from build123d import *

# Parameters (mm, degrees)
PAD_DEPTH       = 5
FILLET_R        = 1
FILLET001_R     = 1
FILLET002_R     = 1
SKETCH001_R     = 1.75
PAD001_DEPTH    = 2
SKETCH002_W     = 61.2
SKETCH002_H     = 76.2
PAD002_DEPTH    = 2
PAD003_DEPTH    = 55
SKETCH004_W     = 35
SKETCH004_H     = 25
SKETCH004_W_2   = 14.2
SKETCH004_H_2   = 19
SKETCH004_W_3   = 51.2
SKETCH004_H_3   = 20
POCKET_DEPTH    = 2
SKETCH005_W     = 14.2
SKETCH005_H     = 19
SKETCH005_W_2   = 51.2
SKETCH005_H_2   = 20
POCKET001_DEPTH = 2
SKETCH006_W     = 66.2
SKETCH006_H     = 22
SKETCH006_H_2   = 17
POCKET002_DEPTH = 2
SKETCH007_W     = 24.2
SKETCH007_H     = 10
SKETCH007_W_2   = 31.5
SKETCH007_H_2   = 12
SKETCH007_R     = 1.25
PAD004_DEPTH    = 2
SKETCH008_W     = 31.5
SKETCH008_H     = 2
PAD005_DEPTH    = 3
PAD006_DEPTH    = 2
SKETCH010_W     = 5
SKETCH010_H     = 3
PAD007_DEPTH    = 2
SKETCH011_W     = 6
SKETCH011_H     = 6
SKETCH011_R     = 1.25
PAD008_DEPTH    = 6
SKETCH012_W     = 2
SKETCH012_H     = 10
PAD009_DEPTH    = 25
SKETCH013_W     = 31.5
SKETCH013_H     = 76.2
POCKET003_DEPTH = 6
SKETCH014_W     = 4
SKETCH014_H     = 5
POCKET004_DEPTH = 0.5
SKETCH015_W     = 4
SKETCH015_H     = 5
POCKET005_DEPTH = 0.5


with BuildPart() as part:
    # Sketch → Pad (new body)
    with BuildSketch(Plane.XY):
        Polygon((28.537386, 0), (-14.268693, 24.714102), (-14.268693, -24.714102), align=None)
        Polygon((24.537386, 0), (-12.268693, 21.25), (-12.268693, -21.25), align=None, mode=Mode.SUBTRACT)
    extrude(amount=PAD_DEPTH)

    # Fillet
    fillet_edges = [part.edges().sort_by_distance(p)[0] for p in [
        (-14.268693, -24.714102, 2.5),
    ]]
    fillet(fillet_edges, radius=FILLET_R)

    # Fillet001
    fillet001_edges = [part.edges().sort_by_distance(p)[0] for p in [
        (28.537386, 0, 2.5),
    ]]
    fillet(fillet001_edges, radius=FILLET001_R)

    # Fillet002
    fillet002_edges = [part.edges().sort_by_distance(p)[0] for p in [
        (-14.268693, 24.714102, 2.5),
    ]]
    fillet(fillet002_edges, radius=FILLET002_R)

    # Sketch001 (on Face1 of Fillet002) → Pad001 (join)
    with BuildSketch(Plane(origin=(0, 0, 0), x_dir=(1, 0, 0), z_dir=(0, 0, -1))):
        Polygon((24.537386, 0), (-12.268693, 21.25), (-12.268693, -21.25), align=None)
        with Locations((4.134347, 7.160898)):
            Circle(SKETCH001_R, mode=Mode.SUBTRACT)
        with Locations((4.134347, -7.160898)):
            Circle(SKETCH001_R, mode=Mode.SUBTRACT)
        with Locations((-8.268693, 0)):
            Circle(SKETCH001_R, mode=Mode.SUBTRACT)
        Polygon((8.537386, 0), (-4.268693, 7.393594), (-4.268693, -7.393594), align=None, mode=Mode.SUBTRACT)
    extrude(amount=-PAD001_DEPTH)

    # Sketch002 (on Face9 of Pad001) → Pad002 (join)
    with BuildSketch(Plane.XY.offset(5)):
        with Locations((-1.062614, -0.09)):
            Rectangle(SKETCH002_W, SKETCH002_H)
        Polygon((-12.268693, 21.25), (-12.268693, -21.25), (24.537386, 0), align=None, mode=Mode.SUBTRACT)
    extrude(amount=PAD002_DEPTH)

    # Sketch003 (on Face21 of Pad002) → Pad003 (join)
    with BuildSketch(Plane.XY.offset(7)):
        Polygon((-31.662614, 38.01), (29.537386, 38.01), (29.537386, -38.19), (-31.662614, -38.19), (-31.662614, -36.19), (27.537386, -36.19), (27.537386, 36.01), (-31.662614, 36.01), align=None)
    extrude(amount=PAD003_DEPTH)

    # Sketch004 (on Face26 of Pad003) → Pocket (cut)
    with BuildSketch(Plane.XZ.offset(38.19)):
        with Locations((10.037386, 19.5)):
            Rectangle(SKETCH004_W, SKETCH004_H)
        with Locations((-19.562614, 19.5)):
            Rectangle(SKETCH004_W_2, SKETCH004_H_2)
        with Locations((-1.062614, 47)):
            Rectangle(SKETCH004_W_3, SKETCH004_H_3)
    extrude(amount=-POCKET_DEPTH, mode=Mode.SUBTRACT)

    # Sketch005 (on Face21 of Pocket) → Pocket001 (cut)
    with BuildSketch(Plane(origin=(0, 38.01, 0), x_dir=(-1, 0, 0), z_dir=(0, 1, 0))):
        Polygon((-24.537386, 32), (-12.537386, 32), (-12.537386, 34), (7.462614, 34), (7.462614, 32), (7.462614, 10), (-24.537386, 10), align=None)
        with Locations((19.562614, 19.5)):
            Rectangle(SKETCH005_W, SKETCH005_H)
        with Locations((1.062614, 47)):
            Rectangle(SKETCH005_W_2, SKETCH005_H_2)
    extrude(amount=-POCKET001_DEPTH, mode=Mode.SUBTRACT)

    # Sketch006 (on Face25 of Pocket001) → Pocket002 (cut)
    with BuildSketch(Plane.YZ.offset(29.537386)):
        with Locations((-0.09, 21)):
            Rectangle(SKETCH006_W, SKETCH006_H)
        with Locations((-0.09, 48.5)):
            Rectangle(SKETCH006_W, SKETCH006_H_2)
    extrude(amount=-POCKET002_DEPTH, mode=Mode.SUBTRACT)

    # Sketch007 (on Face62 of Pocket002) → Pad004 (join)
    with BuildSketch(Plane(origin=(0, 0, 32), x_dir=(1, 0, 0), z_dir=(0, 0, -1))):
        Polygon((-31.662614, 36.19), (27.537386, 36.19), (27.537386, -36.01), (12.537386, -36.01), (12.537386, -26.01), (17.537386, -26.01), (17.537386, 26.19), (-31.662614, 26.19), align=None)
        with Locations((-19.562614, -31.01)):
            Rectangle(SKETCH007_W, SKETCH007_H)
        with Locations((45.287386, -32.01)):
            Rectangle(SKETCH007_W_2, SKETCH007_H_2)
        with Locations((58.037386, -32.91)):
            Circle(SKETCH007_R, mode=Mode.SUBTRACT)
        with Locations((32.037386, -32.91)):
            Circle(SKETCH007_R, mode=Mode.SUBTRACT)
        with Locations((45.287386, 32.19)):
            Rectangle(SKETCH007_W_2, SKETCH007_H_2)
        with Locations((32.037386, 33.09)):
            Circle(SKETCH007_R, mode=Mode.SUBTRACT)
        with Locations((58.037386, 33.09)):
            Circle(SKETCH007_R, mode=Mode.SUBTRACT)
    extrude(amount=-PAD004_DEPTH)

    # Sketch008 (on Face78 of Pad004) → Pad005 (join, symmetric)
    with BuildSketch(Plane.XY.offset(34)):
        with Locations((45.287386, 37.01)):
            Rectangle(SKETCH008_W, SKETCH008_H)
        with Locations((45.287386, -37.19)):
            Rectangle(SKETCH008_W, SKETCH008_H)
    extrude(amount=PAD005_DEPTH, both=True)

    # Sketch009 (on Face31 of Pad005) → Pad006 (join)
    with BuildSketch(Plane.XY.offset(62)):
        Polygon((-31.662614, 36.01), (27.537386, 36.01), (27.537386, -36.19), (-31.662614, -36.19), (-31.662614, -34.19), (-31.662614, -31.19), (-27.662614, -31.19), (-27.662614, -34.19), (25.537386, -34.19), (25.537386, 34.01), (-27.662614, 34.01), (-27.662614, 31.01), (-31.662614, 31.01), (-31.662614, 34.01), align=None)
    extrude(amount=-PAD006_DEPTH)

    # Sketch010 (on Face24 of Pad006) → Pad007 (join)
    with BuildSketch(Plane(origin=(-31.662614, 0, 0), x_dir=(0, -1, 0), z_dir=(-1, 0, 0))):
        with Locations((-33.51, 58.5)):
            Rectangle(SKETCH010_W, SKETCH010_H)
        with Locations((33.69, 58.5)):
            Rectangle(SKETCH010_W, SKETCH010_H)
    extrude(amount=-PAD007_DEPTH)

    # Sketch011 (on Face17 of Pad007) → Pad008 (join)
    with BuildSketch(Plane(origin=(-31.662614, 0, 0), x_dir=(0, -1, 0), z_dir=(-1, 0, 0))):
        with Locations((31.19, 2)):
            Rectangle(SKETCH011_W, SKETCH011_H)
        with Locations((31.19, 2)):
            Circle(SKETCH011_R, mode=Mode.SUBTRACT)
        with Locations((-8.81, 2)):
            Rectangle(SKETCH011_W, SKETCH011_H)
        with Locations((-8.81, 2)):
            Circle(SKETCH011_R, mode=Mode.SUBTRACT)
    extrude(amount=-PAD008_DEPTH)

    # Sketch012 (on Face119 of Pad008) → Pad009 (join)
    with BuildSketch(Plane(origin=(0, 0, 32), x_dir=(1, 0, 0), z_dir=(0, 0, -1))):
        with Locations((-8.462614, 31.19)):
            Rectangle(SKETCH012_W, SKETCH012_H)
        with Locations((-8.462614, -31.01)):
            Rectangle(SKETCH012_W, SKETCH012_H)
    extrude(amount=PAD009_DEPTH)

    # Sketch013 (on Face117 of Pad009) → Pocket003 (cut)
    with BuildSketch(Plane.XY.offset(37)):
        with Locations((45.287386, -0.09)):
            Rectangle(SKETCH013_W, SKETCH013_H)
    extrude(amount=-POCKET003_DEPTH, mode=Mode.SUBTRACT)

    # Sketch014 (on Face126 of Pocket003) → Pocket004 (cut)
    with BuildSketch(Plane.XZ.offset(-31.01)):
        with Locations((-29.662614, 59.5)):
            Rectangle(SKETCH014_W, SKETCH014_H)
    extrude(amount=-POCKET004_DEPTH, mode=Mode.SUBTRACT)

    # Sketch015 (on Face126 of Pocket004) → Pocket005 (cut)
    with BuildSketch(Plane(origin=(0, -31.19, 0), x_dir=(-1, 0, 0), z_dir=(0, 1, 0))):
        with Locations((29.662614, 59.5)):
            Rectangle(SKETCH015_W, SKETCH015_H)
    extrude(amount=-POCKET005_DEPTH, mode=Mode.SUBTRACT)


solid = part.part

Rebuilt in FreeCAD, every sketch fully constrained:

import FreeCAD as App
import Part
import Sketcher

V = App.Vector
Q = App.Units.Quantity


def edges_at(feature, points):
    """Names of the edges that pass closest to the given points."""
    edges = feature.Shape.Edges
    near = lambda p: min(range(len(edges)), key=lambda i: edges[i].distToShape(Part.Vertex(*p))[0])
    return sorted({f"Edge{near(p) + 1}" for p in points})

doc = App.newDocument("Part")
body = doc.addObject("PartDesign::Body", "Body")

# Sketch on XY plane
sketch1 = body.newObject("Sketcher::SketchObject", "Sketch")
sketch1.AttachmentSupport = (doc.getObject("XY_Plane"), [""])
sketch1.MapMode = "FlatFace"
sketch1.addGeometry([
    Part.LineSegment(V(29, 0, 0), V(-14, 25, 0)),  # 0
    Part.LineSegment(V(-14, 25, 0), V(-14, -25, 0)),  # 1
    Part.LineSegment(V(-14, -25, 0), V(29, 0, 0)),  # 2
    Part.LineSegment(V(-12, 21, 0), V(25, 0, 0)),  # 3
    Part.LineSegment(V(25, 0, 0), V(-12, -21, 0)),  # 4
    Part.LineSegment(V(-12, -21, 0), V(-12, 21, 0)),  # 5
], False)
sketch1.addConstraint([
    Sketcher.Constraint("Coincident", 0, 2, 1, 1),
    Sketcher.Constraint("Coincident", 1, 2, 2, 1),
    Sketcher.Constraint("Coincident", 2, 2, 0, 1),
    Sketcher.Constraint("Coincident", 3, 2, 4, 1),
    Sketcher.Constraint("Coincident", 4, 2, 5, 1),
    Sketcher.Constraint("Coincident", 5, 2, 3, 1),
    Sketcher.Constraint("Vertical", 1),
    Sketcher.Constraint("Vertical", 5),
    Sketcher.Constraint("PointOnObject", 2, 2, -1),
    Sketcher.Constraint("PointOnObject", 3, 2, -1),
    Sketcher.Constraint("Parallel", 0, 3),
    Sketcher.Constraint("Parallel", 2, 4),
    Sketcher.Constraint("Equal", 0, 2),
    Sketcher.Constraint("Angle", 0, Q("149.999999 deg")),
    Sketcher.Constraint("DistanceY", 5, 1, 5, 2, 42.5),
    Sketcher.Constraint("DistanceX", 3, 2, 2, 2, 4.0),
    Sketcher.Constraint("DistanceX", 1, 2, 4, 2, 2.0),
    Sketcher.Constraint("DistanceX", 0, 2, -1, 1, 14.268693),
])
pad1 = body.newObject("PartDesign::Pad", "Pad")
pad1.Profile = sketch1
pad1.Length = 5
doc.recompute()

fillet = body.newObject("PartDesign::Fillet", "Fillet")
fillet.Base = (pad1, edges_at(pad1, [(-14.269, -24.714, 2.5)]))
fillet.Radius = 1
doc.recompute()

fillet2 = body.newObject("PartDesign::Fillet", "Fillet001")
fillet2.Base = (fillet, edges_at(fillet, [(28.537, 0, 2.5)]))
fillet2.Radius = 1
doc.recompute()

fillet3 = body.newObject("PartDesign::Fillet", "Fillet002")
fillet3.Base = (fillet2, edges_at(fillet2, [(-14.269, 24.714, 2.5)]))
fillet3.Radius = 1

# Sketch on XY plane
sketch2 = body.newObject("Sketcher::SketchObject", "Sketch001")
sketch2.AttachmentSupport = (doc.getObject("XY_Plane"), [""])
sketch2.MapMode = "FlatFace"
sketch2.addGeometry([
    Part.LineSegment(V(24.5, 0, 0), V(-12.3, -21.2, 0)),  # 0
    Part.LineSegment(V(-12.3, -21.2, 0), V(-12.3, 21.2, 0)),  # 1
    Part.LineSegment(V(-12.3, 21.2, 0), V(24.5, 0, 0)),  # 2
    Part.Circle(V(4.1, 7.2, 0), V(0, 0, 1), 1.8),  # 3
    Part.Circle(V(-8.3, 0, 0), V(0, 0, 1), 1.8),  # 4
    Part.LineSegment(V(-4.3, -7.4, 0), V(8.5, 0, 0)),  # 5
    Part.LineSegment(V(8.5, 0, 0), V(-4.3, 7.4, 0)),  # 6
    Part.LineSegment(V(-4.3, 7.4, 0), V(-4.3, -7.4, 0)),  # 7
    Part.Circle(V(4.1, -7.2, 0), V(0, 0, 1), 1.8),  # 8
], False)
sketch2.addConstraint([
    Sketcher.Constraint("Coincident", 0, 2, 1, 1),
    Sketcher.Constraint("Coincident", 1, 2, 2, 1),
    Sketcher.Constraint("Coincident", 2, 2, 0, 1),
    Sketcher.Constraint("Coincident", 5, 2, 6, 1),
    Sketcher.Constraint("Coincident", 6, 2, 7, 1),
    Sketcher.Constraint("Coincident", 7, 2, 5, 1),
    Sketcher.Constraint("Vertical", 1),
    Sketcher.Constraint("Vertical", 7),
    Sketcher.Constraint("Equal", 3, 4),
    Sketcher.Constraint("Equal", 4, 8),
    Sketcher.Constraint("Symmetric", 3, 3, 8, 3, -1),
    Sketcher.Constraint("PointOnObject", 4, 3, -1),
    Sketcher.Constraint("PointOnObject", 2, 2, -1),
    Sketcher.Constraint("PointOnObject", 5, 2, -1),
    Sketcher.Constraint("Parallel", 0, 5),
    Sketcher.Constraint("Parallel", 2, 6),
    Sketcher.Constraint("Equal", 0, 2),
    Sketcher.Constraint("Diameter", 3, 3.5),
    Sketcher.Constraint("Angle", 0, Q("-150 deg")),
    Sketcher.Constraint("DistanceY", 1, 1, 1, 2, 42.5),
    Sketcher.Constraint("DistanceX", 0, 2, 4, 3, 4.0),
    Sketcher.Constraint("DistanceX", 5, 2, 2, 2, 16.0),
    Sketcher.Constraint("DistanceX", 4, 3, 6, 2, 4.0),
    Sketcher.Constraint("DistanceY", -1, 1, 3, 3, 7.160898),
    Sketcher.Constraint("DistanceX", 4, 3, 3, 3, 12.40304),
    Sketcher.Constraint("DistanceX", -1, 1, 3, 3, 4.134347),
])
pad2 = body.newObject("PartDesign::Pad", "Pad001")
pad2.Profile = sketch2
pad2.Length = 2

# Sketch on XY plane
sketch3 = body.newObject("Sketcher::SketchObject", "Sketch002")
sketch3.AttachmentSupport = (doc.getObject("XY_Plane"), [""])
sketch3.MapMode = "FlatFace"
sketch3.AttachmentOffset = App.Placement(V(0, 0, 5), App.Rotation())
sketch3.addGeometry([
    Part.LineSegment(V(-32, 38, 0), V(-32, -38, 0)),  # 0
    Part.LineSegment(V(-32, -38, 0), V(30, -38, 0)),  # 1
    Part.LineSegment(V(30, -38, 0), V(30, 38, 0)),  # 2
    Part.LineSegment(V(30, 38, 0), V(-32, 38, 0)),  # 3
    Part.LineSegment(V(-12, -21, 0), V(-12, 21, 0)),  # 4
    Part.LineSegment(V(-12, 21, 0), V(25, 0, 0)),  # 5
    Part.LineSegment(V(25, 0, 0), V(-12, -21, 0)),  # 6
], False)
sketch3.addConstraint([
    Sketcher.Constraint("Coincident", 0, 2, 1, 1),
    Sketcher.Constraint("Coincident", 1, 2, 2, 1),
    Sketcher.Constraint("Coincident", 2, 2, 3, 1),
    Sketcher.Constraint("Coincident", 3, 2, 0, 1),
    Sketcher.Constraint("Coincident", 4, 2, 5, 1),
    Sketcher.Constraint("Coincident", 5, 2, 6, 1),
    Sketcher.Constraint("Coincident", 6, 2, 4, 1),
    Sketcher.Constraint("Vertical", 0),
    Sketcher.Constraint("Horizontal", 1),
    Sketcher.Constraint("Vertical", 2),
    Sketcher.Constraint("Horizontal", 3),
    Sketcher.Constraint("Vertical", 4),
    Sketcher.Constraint("PointOnObject", 5, 2, -1),
    Sketcher.Constraint("Equal", 5, 6),
    Sketcher.Constraint("Angle", 5, Q("-30 deg")),
    Sketcher.Constraint("DistanceX", 1, 1, 1, 2, 61.2),
    Sketcher.Constraint("DistanceY", 0, 2, 0, 1, 76.2),
    Sketcher.Constraint("DistanceY", 4, 1, 4, 2, 42.5),
    Sketcher.Constraint("DistanceX", 5, 2, 2, 2, 5.0),
    Sketcher.Constraint("DistanceY", 0, 2, -1, 1, 38.19),
    Sketcher.Constraint("DistanceX", 0, 2, -1, 1, 31.662614),
])
pad3 = body.newObject("PartDesign::Pad", "Pad002")
pad3.Profile = sketch3
pad3.Length = 2

# Sketch on XY plane
sketch4 = body.newObject("Sketcher::SketchObject", "Sketch003")
sketch4.AttachmentSupport = (doc.getObject("XY_Plane"), [""])
sketch4.MapMode = "FlatFace"
sketch4.AttachmentOffset = App.Placement(V(0, 0, 7), App.Rotation())
sketch4.addGeometry([
    Part.LineSegment(V(29.5, 38, 0), V(-31.7, 38, 0)),  # 0
    Part.LineSegment(V(-31.7, 38, 0), V(-31.7, 36, 0)),  # 1
    Part.LineSegment(V(-31.7, 36, 0), V(27.5, 36, 0)),  # 2
    Part.LineSegment(V(27.5, 36, 0), V(27.5, -36.2, 0)),  # 3
    Part.LineSegment(V(27.5, -36.2, 0), V(-31.7, -36.2, 0)),  # 4
    Part.LineSegment(V(-31.7, -36.2, 0), V(-31.7, -38.2, 0)),  # 5
    Part.LineSegment(V(-31.7, -38.2, 0), V(29.5, -38.2, 0)),  # 6
    Part.LineSegment(V(29.5, -38.2, 0), V(29.5, 38, 0)),  # 7
], False)
sketch4.addConstraint([
    Sketcher.Constraint("Coincident", 0, 2, 1, 1),
    Sketcher.Constraint("Coincident", 1, 2, 2, 1),
    Sketcher.Constraint("Coincident", 2, 2, 3, 1),
    Sketcher.Constraint("Coincident", 3, 2, 4, 1),
    Sketcher.Constraint("Coincident", 4, 2, 5, 1),
    Sketcher.Constraint("Coincident", 5, 2, 6, 1),
    Sketcher.Constraint("Coincident", 6, 2, 7, 1),
    Sketcher.Constraint("Coincident", 7, 2, 0, 1),
    Sketcher.Constraint("Horizontal", 0),
    Sketcher.Constraint("Vertical", 1),
    Sketcher.Constraint("Horizontal", 2),
    Sketcher.Constraint("Vertical", 3),
    Sketcher.Constraint("Horizontal", 4),
    Sketcher.Constraint("Vertical", 5),
    Sketcher.Constraint("Horizontal", 6),
    Sketcher.Constraint("Vertical", 7),
    Sketcher.Constraint("Vertical", 1, 2, 4, 2),
    Sketcher.Constraint("Equal", 1, 5),
    Sketcher.Constraint("DistanceY", 1, 2, 1, 1, 2.0),
    Sketcher.Constraint("DistanceX", 0, 2, 0, 1, 61.2),
    Sketcher.Constraint("DistanceX", 2, 1, 2, 2, 59.2),
    Sketcher.Constraint("DistanceY", 3, 2, 3, 1, 72.2),
    Sketcher.Constraint("DistanceY", -1, 1, 0, 2, 38.01),
    Sketcher.Constraint("DistanceX", 0, 2, -1, 1, 31.662614),
])
pad4 = body.newObject("PartDesign::Pad", "Pad003")
pad4.Profile = sketch4
pad4.Length = 55

# Sketch on XZ plane
sketch5 = body.newObject("Sketcher::SketchObject", "Sketch004")
sketch5.AttachmentSupport = (doc.getObject("XZ_Plane"), [""])
sketch5.MapMode = "FlatFace"
sketch5.AttachmentOffset = App.Placement(V(0, 0, 38.19), App.Rotation())
sketch5.addGeometry([
    Part.LineSegment(V(-7, 32, 0), V(-7, 7, 0)),  # 0
    Part.LineSegment(V(-7, 7, 0), V(28, 7, 0)),  # 1
    Part.LineSegment(V(28, 7, 0), V(28, 32, 0)),  # 2
    Part.LineSegment(V(28, 32, 0), V(-7, 32, 0)),  # 3
    Part.LineSegment(V(-27, 29, 0), V(-27, 10, 0)),  # 4
    Part.LineSegment(V(-27, 10, 0), V(-12, 10, 0)),  # 5
    Part.LineSegment(V(-12, 10, 0), V(-12, 29, 0)),  # 6
    Part.LineSegment(V(-12, 29, 0), V(-27, 29, 0)),  # 7
    Part.LineSegment(V(-27, 57, 0), V(-27, 37, 0)),  # 8
    Part.LineSegment(V(-27, 37, 0), V(25, 37, 0)),  # 9
    Part.LineSegment(V(25, 37, 0), V(25, 57, 0)),  # 10
    Part.LineSegment(V(25, 57, 0), V(-27, 57, 0)),  # 11
], False)
sketch5.addConstraint([
    Sketcher.Constraint("Coincident", 0, 2, 1, 1),
    Sketcher.Constraint("Coincident", 1, 2, 2, 1),
    Sketcher.Constraint("Coincident", 2, 2, 3, 1),
    Sketcher.Constraint("Coincident", 3, 2, 0, 1),
    Sketcher.Constraint("Coincident", 4, 2, 5, 1),
    Sketcher.Constraint("Coincident", 5, 2, 6, 1),
    Sketcher.Constraint("Coincident", 6, 2, 7, 1),
    Sketcher.Constraint("Coincident", 7, 2, 4, 1),
    Sketcher.Constraint("Coincident", 8, 2, 9, 1),
    Sketcher.Constraint("Coincident", 9, 2, 10, 1),
    Sketcher.Constraint("Coincident", 10, 2, 11, 1),
    Sketcher.Constraint("Coincident", 11, 2, 8, 1),
    Sketcher.Constraint("Vertical", 0),
    Sketcher.Constraint("Horizontal", 1),
    Sketcher.Constraint("Vertical", 2),
    Sketcher.Constraint("Horizontal", 3),
    Sketcher.Constraint("Vertical", 4),
    Sketcher.Constraint("Horizontal", 5),
    Sketcher.Constraint("Vertical", 6),
    Sketcher.Constraint("Horizontal", 7),
    Sketcher.Constraint("Vertical", 8),
    Sketcher.Constraint("Horizontal", 9),
    Sketcher.Constraint("Vertical", 10),
    Sketcher.Constraint("Horizontal", 11),
    Sketcher.Constraint("Vertical", 7, 2, 8, 2),
    Sketcher.Constraint("DistanceX", 1, 1, 1, 2, 35.0),
    Sketcher.Constraint("DistanceY", 0, 2, 0, 1, 25.0),
    Sketcher.Constraint("DistanceY", 4, 2, 4, 1, 19.0),
    Sketcher.Constraint("DistanceY", 8, 2, 8, 1, 20.0),
    Sketcher.Constraint("DistanceX", 5, 1, 5, 2, 14.2),
    Sketcher.Constraint("DistanceX", 9, 1, 9, 2, 51.2),
    Sketcher.Constraint("DistanceY", -1, 1, 0, 2, 7.0),
    Sketcher.Constraint("DistanceY", -1, 1, 4, 2, 10.0),
    Sketcher.Constraint("DistanceY", -1, 1, 8, 2, 37.0),
    Sketcher.Constraint("DistanceX", 5, 2, 0, 2, 5.0),
    Sketcher.Constraint("DistanceX", 0, 2, -1, 1, 7.462614),
])
pocket1 = body.newObject("PartDesign::Pocket", "Pocket")
pocket1.Profile = sketch5
pocket1.Length = 2

# Sketch on XZ plane
sketch6 = body.newObject("Sketcher::SketchObject", "Sketch005")
sketch6.AttachmentSupport = (doc.getObject("XZ_Plane"), [""])
sketch6.MapMode = "FlatFace"
sketch6.AttachmentOffset = App.Placement(V(0, 0, -38.01), App.Rotation())
sketch6.addGeometry([
    Part.LineSegment(V(12.5, 32, 0), V(24.5, 32, 0)),  # 0
    Part.LineSegment(V(24.5, 32, 0), V(24.5, 10, 0)),  # 1
    Part.LineSegment(V(24.5, 10, 0), V(-7.5, 10, 0)),  # 2
    Part.LineSegment(V(-7.5, 10, 0), V(-7.5, 34, 0)),  # 3
    Part.LineSegment(V(-7.5, 34, 0), V(12.5, 34, 0)),  # 4
    Part.LineSegment(V(12.5, 34, 0), V(12.5, 32, 0)),  # 5
    Part.LineSegment(V(-12.5, 29, 0), V(-12.5, 10, 0)),  # 6
    Part.LineSegment(V(-12.5, 10, 0), V(-26.7, 10, 0)),  # 7
    Part.LineSegment(V(-26.7, 10, 0), V(-26.7, 29, 0)),  # 8
    Part.LineSegment(V(-26.7, 29, 0), V(-12.5, 29, 0)),  # 9
    Part.LineSegment(V(24.5, 57, 0), V(24.5, 37, 0)),  # 10
    Part.LineSegment(V(24.5, 37, 0), V(-26.7, 37, 0)),  # 11
    Part.LineSegment(V(-26.7, 37, 0), V(-26.7, 57, 0)),  # 12
    Part.LineSegment(V(-26.7, 57, 0), V(24.5, 57, 0)),  # 13
], False)
sketch6.addConstraint([
    Sketcher.Constraint("Coincident", 0, 2, 1, 1),
    Sketcher.Constraint("Coincident", 1, 2, 2, 1),
    Sketcher.Constraint("Coincident", 2, 2, 3, 1),
    Sketcher.Constraint("Coincident", 3, 2, 4, 1),
    Sketcher.Constraint("Coincident", 4, 2, 5, 1),
    Sketcher.Constraint("Coincident", 5, 2, 0, 1),
    Sketcher.Constraint("Coincident", 6, 2, 7, 1),
    Sketcher.Constraint("Coincident", 7, 2, 8, 1),
    Sketcher.Constraint("Coincident", 8, 2, 9, 1),
    Sketcher.Constraint("Coincident", 9, 2, 6, 1),
    Sketcher.Constraint("Coincident", 10, 2, 11, 1),
    Sketcher.Constraint("Coincident", 11, 2, 12, 1),
    Sketcher.Constraint("Coincident", 12, 2, 13, 1),
    Sketcher.Constraint("Coincident", 13, 2, 10, 1),
    Sketcher.Constraint("Horizontal", 0),
    Sketcher.Constraint("Vertical", 1),
    Sketcher.Constraint("Horizontal", 2),
    Sketcher.Constraint("Vertical", 3),
    Sketcher.Constraint("Horizontal", 4),
    Sketcher.Constraint("Vertical", 5),
    Sketcher.Constraint("Vertical", 6),
    Sketcher.Constraint("Horizontal", 7),
    Sketcher.Constraint("Vertical", 8),
    Sketcher.Constraint("Horizontal", 9),
    Sketcher.Constraint("Vertical", 10),
    Sketcher.Constraint("Horizontal", 11),
    Sketcher.Constraint("Vertical", 12),
    Sketcher.Constraint("Horizontal", 13),
    Sketcher.Constraint("Horizontal", 2, 2, 6, 2),
    Sketcher.Constraint("Vertical", 1, 2, 10, 2),
    Sketcher.Constraint("Vertical", 8, 2, 11, 2),
    Sketcher.Constraint("Equal", 4, 10),
    Sketcher.Constraint("DistanceX", 0, 1, 0, 2, 12.0),
    Sketcher.Constraint("DistanceX", 2, 2, 2, 1, 32.0),
    Sketcher.Constraint("DistanceY", 1, 2, 1, 1, 22.0),
    Sketcher.Constraint("DistanceY", 3, 1, 3, 2, 24.0),
    Sketcher.Constraint("DistanceY", 6, 2, 6, 1, 19.0),
    Sketcher.Constraint("DistanceX", 7, 2, 7, 1, 14.2),
    Sketcher.Constraint("DistanceX", 11, 2, 11, 1, 51.2),
    Sketcher.Constraint("DistanceY", -1, 1, 0, 2, 32.0),
    Sketcher.Constraint("DistanceY", -1, 1, 10, 2, 37.0),
    Sketcher.Constraint("DistanceX", -1, 1, 0, 2, 24.537386),
])
pocket2 = body.newObject("PartDesign::Pocket", "Pocket001")
pocket2.Profile = sketch6
pocket2.Length = 2
pocket2.Reversed = True

# Sketch on YZ plane
sketch7 = body.newObject("Sketcher::SketchObject", "Sketch006")
sketch7.AttachmentSupport = (doc.getObject("YZ_Plane"), [""])
sketch7.MapMode = "FlatFace"
sketch7.AttachmentOffset = App.Placement(V(0, 0, 29.537386), App.Rotation())
sketch7.addGeometry([
    Part.LineSegment(V(-33, 32, 0), V(-33, 10, 0)),  # 0
    Part.LineSegment(V(-33, 10, 0), V(33, 10, 0)),  # 1
    Part.LineSegment(V(33, 10, 0), V(33, 32, 0)),  # 2
    Part.LineSegment(V(33, 32, 0), V(-33, 32, 0)),  # 3
    Part.LineSegment(V(-33, 57, 0), V(-33, 40, 0)),  # 4
    Part.LineSegment(V(-33, 40, 0), V(33, 40, 0)),  # 5
    Part.LineSegment(V(33, 40, 0), V(33, 57, 0)),  # 6
    Part.LineSegment(V(33, 57, 0), V(-33, 57, 0)),  # 7
], False)
sketch7.addConstraint([
    Sketcher.Constraint("Coincident", 0, 2, 1, 1),
    Sketcher.Constraint("Coincident", 1, 2, 2, 1),
    Sketcher.Constraint("Coincident", 2, 2, 3, 1),
    Sketcher.Constraint("Coincident", 3, 2, 0, 1),
    Sketcher.Constraint("Coincident", 4, 2, 5, 1),
    Sketcher.Constraint("Coincident", 5, 2, 6, 1),
    Sketcher.Constraint("Coincident", 6, 2, 7, 1),
    Sketcher.Constraint("Coincident", 7, 2, 4, 1),
    Sketcher.Constraint("Vertical", 0),
    Sketcher.Constraint("Horizontal", 1),
    Sketcher.Constraint("Vertical", 2),
    Sketcher.Constraint("Horizontal", 3),
    Sketcher.Constraint("Vertical", 4),
    Sketcher.Constraint("Horizontal", 5),
    Sketcher.Constraint("Vertical", 6),
    Sketcher.Constraint("Horizontal", 7),
    Sketcher.Constraint("Vertical", 3, 2, 4, 2),
    Sketcher.Constraint("Vertical", 2, 2, 5, 2),
    Sketcher.Constraint("DistanceY", 0, 2, 0, 1, 22.0),
    Sketcher.Constraint("DistanceY", 4, 2, 4, 1, 17.0),
    Sketcher.Constraint("DistanceX", 1, 1, 1, 2, 66.2),
    Sketcher.Constraint("DistanceY", -1, 1, 0, 2, 10.0),
    Sketcher.Constraint("DistanceY", -1, 1, 4, 2, 40.0),
    Sketcher.Constraint("DistanceX", 0, 2, -1, 1, 33.19),
])
pocket3 = body.newObject("PartDesign::Pocket", "Pocket002")
pocket3.Profile = sketch7
pocket3.Length = 2

# Sketch on XY plane
sketch8 = body.newObject("Sketcher::SketchObject", "Sketch007")
sketch8.AttachmentSupport = (doc.getObject("XY_Plane"), [""])
sketch8.MapMode = "FlatFace"
sketch8.AttachmentOffset = App.Placement(V(0, 0, 32), App.Rotation())
sketch8.addGeometry([
    Part.LineSegment(V(27.5, -36.2, 0), V(-31.7, -36.2, 0)),  # 0
    Part.LineSegment(V(-31.7, -36.2, 0), V(-31.7, -26.2, 0)),  # 1
    Part.LineSegment(V(-31.7, -26.2, 0), V(17.5, -26.2, 0)),  # 2
    Part.LineSegment(V(17.5, -26.2, 0), V(17.5, 26, 0)),  # 3
    Part.LineSegment(V(17.5, 26, 0), V(12.5, 26, 0)),  # 4
    Part.LineSegment(V(12.5, 26, 0), V(12.5, 36, 0)),  # 5
    Part.LineSegment(V(12.5, 36, 0), V(27.5, 36, 0)),  # 6
    Part.LineSegment(V(27.5, 36, 0), V(27.5, -36.2, 0)),  # 7
    Part.LineSegment(V(-31.7, 26, 0), V(-31.7, 36, 0)),  # 8
    Part.LineSegment(V(-31.7, 36, 0), V(-7.5, 36, 0)),  # 9
    Part.LineSegment(V(-7.5, 36, 0), V(-7.5, 26, 0)),  # 10
    Part.LineSegment(V(-7.5, 26, 0), V(-31.7, 26, 0)),  # 11
    Part.LineSegment(V(29.5, 26, 0), V(29.5, 38, 0)),  # 12
    Part.LineSegment(V(29.5, 38, 0), V(61, 38, 0)),  # 13
    Part.LineSegment(V(61, 38, 0), V(61, 26, 0)),  # 14
    Part.LineSegment(V(61, 26, 0), V(29.5, 26, 0)),  # 15
    Part.Circle(V(32, 32.9, 0), V(0, 0, 1), 1.2),  # 16
    Part.Circle(V(58, 32.9, 0), V(0, 0, 1), 1.2),  # 17
    Part.LineSegment(V(29.5, -38.2, 0), V(29.5, -26.2, 0)),  # 18
    Part.LineSegment(V(29.5, -26.2, 0), V(61, -26.2, 0)),  # 19
    Part.LineSegment(V(61, -26.2, 0), V(61, -38.2, 0)),  # 20
    Part.LineSegment(V(61, -38.2, 0), V(29.5, -38.2, 0)),  # 21
    Part.Circle(V(32, -33.1, 0), V(0, 0, 1), 1.2),  # 22
    Part.Circle(V(58, -33.1, 0), V(0, 0, 1), 1.2),  # 23
], False)
sketch8.addConstraint([
    Sketcher.Constraint("Coincident", 0, 2, 1, 1),
    Sketcher.Constraint("Coincident", 1, 2, 2, 1),
    Sketcher.Constraint("Coincident", 2, 2, 3, 1),
    Sketcher.Constraint("Coincident", 3, 2, 4, 1),
    Sketcher.Constraint("Coincident", 4, 2, 5, 1),
    Sketcher.Constraint("Coincident", 5, 2, 6, 1),
    Sketcher.Constraint("Coincident", 6, 2, 7, 1),
    Sketcher.Constraint("Coincident", 7, 2, 0, 1),
    Sketcher.Constraint("Coincident", 8, 2, 9, 1),
    Sketcher.Constraint("Coincident", 9, 2, 10, 1),
    Sketcher.Constraint("Coincident", 10, 2, 11, 1),
    Sketcher.Constraint("Coincident", 11, 2, 8, 1),
    Sketcher.Constraint("Coincident", 12, 2, 13, 1),
    Sketcher.Constraint("Coincident", 13, 2, 14, 1),
    Sketcher.Constraint("Coincident", 14, 2, 15, 1),
    Sketcher.Constraint("Coincident", 15, 2, 12, 1),
    Sketcher.Constraint("Coincident", 18, 2, 19, 1),
    Sketcher.Constraint("Coincident", 19, 2, 20, 1),
    Sketcher.Constraint("Coincident", 20, 2, 21, 1),
    Sketcher.Constraint("Coincident", 21, 2, 18, 1),
    Sketcher.Constraint("Horizontal", 0),
    Sketcher.Constraint("Vertical", 1),
    Sketcher.Constraint("Horizontal", 2),
    Sketcher.Constraint("Vertical", 3),
    Sketcher.Constraint("Horizontal", 4),
    Sketcher.Constraint("Vertical", 5),
    Sketcher.Constraint("Horizontal", 6),
    Sketcher.Constraint("Vertical", 7),
    Sketcher.Constraint("Vertical", 8),
    Sketcher.Constraint("Horizontal", 9),
    Sketcher.Constraint("Vertical", 10),
    Sketcher.Constraint("Horizontal", 11),
    Sketcher.Constraint("Vertical", 12),
    Sketcher.Constraint("Horizontal", 13),
    Sketcher.Constraint("Vertical", 14),
    Sketcher.Constraint("Horizontal", 15),
    Sketcher.Constraint("Vertical", 18),
    Sketcher.Constraint("Horizontal", 19),
    Sketcher.Constraint("Vertical", 20),
    Sketcher.Constraint("Horizontal", 21),
    Sketcher.Constraint("Equal", 16, 17),
    Sketcher.Constraint("Equal", 17, 22),
    Sketcher.Constraint("Equal", 22, 23),
    Sketcher.Constraint("Horizontal", 16, 3, 17, 3),
    Sketcher.Constraint("Horizontal", 22, 3, 23, 3),
    Sketcher.Constraint("Horizontal", 6, 2, 8, 2),
    Sketcher.Constraint("Horizontal", 4, 2, 10, 2),
    Sketcher.Constraint("Horizontal", 11, 2, 14, 2),
    Sketcher.Constraint("Horizontal", 2, 2, 18, 2),
    Sketcher.Constraint("Vertical", 16, 3, 22, 3),
    Sketcher.Constraint("Vertical", 17, 3, 23, 3),
    Sketcher.Constraint("Vertical", 1, 2, 8, 2),
    Sketcher.Constraint("Vertical", 15, 2, 18, 2),
    Sketcher.Constraint("Vertical", 14, 2, 19, 2),
    Sketcher.Constraint("Equal", 1, 5),
    Sketcher.Constraint("Equal", 14, 18),
    Sketcher.Constraint("Diameter", 16, 2.5),
    Sketcher.Constraint("DistanceX", 4, 2, 4, 1, 5.0),
    Sketcher.Constraint("DistanceX", 6, 1, 6, 2, 15.0),
    Sketcher.Constraint("DistanceY", 1, 1, 1, 2, 10.0),
    Sketcher.Constraint("DistanceY", 12, 1, 12, 2, 12.0),
    Sketcher.Constraint("DistanceX", 0, 2, 0, 1, 59.2),
    Sketcher.Constraint("DistanceX", 9, 1, 9, 2, 24.2),
    Sketcher.Constraint("DistanceX", 13, 1, 13, 2, 31.5),
    Sketcher.Constraint("DistanceY", 3, 1, 3, 2, 52.2),
    Sketcher.Constraint("DistanceX", 16, 3, 17, 3, 26.0),
    Sketcher.Constraint("DistanceY", 22, 3, 16, 3, 66.0),
    Sketcher.Constraint("DistanceX", 6, 2, 12, 2, 2.0),
    Sketcher.Constraint("DistanceX", 17, 3, 13, 2, 3.0),
    Sketcher.Constraint("DistanceY", 0, 2, 22, 3, 3.1),
    Sketcher.Constraint("DistanceY", -1, 1, 16, 3, 32.91),
    Sketcher.Constraint("DistanceX", -1, 1, 16, 3, 32.037386),
])
pad5 = body.newObject("PartDesign::Pad", "Pad004")
pad5.Profile = sketch8
pad5.Length = 2

# Sketch on XY plane
sketch9 = body.newObject("Sketcher::SketchObject", "Sketch008")
sketch9.AttachmentSupport = (doc.getObject("XY_Plane"), [""])
sketch9.MapMode = "FlatFace"
sketch9.AttachmentOffset = App.Placement(V(0, 0, 34), App.Rotation())
sketch9.addGeometry([
    Part.LineSegment(V(29.5, 38, 0), V(29.5, 36, 0)),  # 0
    Part.LineSegment(V(29.5, 36, 0), V(61, 36, 0)),  # 1
    Part.LineSegment(V(61, 36, 0), V(61, 38, 0)),  # 2
    Part.LineSegment(V(61, 38, 0), V(29.5, 38, 0)),  # 3
    Part.LineSegment(V(29.5, -36.2, 0), V(29.5, -38.2, 0)),  # 4
    Part.LineSegment(V(29.5, -38.2, 0), V(61, -38.2, 0)),  # 5
    Part.LineSegment(V(61, -38.2, 0), V(61, -36.2, 0)),  # 6
    Part.LineSegment(V(61, -36.2, 0), V(29.5, -36.2, 0)),  # 7
], False)
sketch9.addConstraint([
    Sketcher.Constraint("Coincident", 0, 2, 1, 1),
    Sketcher.Constraint("Coincident", 1, 2, 2, 1),
    Sketcher.Constraint("Coincident", 2, 2, 3, 1),
    Sketcher.Constraint("Coincident", 3, 2, 0, 1),
    Sketcher.Constraint("Coincident", 4, 2, 5, 1),
    Sketcher.Constraint("Coincident", 5, 2, 6, 1),
    Sketcher.Constraint("Coincident", 6, 2, 7, 1),
    Sketcher.Constraint("Coincident", 7, 2, 4, 1),
    Sketcher.Constraint("Vertical", 0),
    Sketcher.Constraint("Horizontal", 1),
    Sketcher.Constraint("Vertical", 2),
    Sketcher.Constraint("Horizontal", 3),
    Sketcher.Constraint("Vertical", 4),
    Sketcher.Constraint("Horizontal", 5),
    Sketcher.Constraint("Vertical", 6),
    Sketcher.Constraint("Horizontal", 7),
    Sketcher.Constraint("Vertical", 3, 2, 4, 2),
    Sketcher.Constraint("Vertical", 2, 2, 5, 2),
    Sketcher.Constraint("Equal", 2, 4),
    Sketcher.Constraint("DistanceY", 0, 2, 0, 1, 2.0),
    Sketcher.Constraint("DistanceX", 1, 1, 1, 2, 31.5),
    Sketcher.Constraint("DistanceY", 4, 2, 0, 2, 74.2),
    Sketcher.Constraint("DistanceY", -1, 1, 0, 2, 36.01),
    Sketcher.Constraint("DistanceX", -1, 1, 0, 2, 29.537386),
])
pad6 = body.newObject("PartDesign::Pad", "Pad005")
pad6.Profile = sketch9
pad6.Length = 6
pad6.Midplane = True

# Sketch on XY plane
sketch10 = body.newObject("Sketcher::SketchObject", "Sketch009")
sketch10.AttachmentSupport = (doc.getObject("XY_Plane"), [""])
sketch10.MapMode = "FlatFace"
sketch10.AttachmentOffset = App.Placement(V(0, 0, 62), App.Rotation())
sketch10.addGeometry([
    Part.LineSegment(V(27.5, 36, 0), V(-31.7, 36, 0)),  # 0
    Part.LineSegment(V(-31.7, 36, 0), V(-31.7, 31, 0)),  # 1
    Part.LineSegment(V(-31.7, 31, 0), V(-27.7, 31, 0)),  # 2
    Part.LineSegment(V(-27.7, 31, 0), V(-27.7, 34, 0)),  # 3
    Part.LineSegment(V(-27.7, 34, 0), V(25.5, 34, 0)),  # 4
    Part.LineSegment(V(25.5, 34, 0), V(25.5, -34.2, 0)),  # 5
    Part.LineSegment(V(25.5, -34.2, 0), V(-27.7, -34.2, 0)),  # 6
    Part.LineSegment(V(-27.7, -34.2, 0), V(-27.7, -31.2, 0)),  # 7
    Part.LineSegment(V(-27.7, -31.2, 0), V(-31.7, -31.2, 0)),  # 8
    Part.LineSegment(V(-31.7, -31.2, 0), V(-31.7, -36.2, 0)),  # 9
    Part.LineSegment(V(-31.7, -36.2, 0), V(27.5, -36.2, 0)),  # 10
    Part.LineSegment(V(27.5, -36.2, 0), V(27.5, 36, 0)),  # 11
], False)
sketch10.addConstraint([
    Sketcher.Constraint("Coincident", 0, 2, 1, 1),
    Sketcher.Constraint("Coincident", 1, 2, 2, 1),
    Sketcher.Constraint("Coincident", 2, 2, 3, 1),
    Sketcher.Constraint("Coincident", 3, 2, 4, 1),
    Sketcher.Constraint("Coincident", 4, 2, 5, 1),
    Sketcher.Constraint("Coincident", 5, 2, 6, 1),
    Sketcher.Constraint("Coincident", 6, 2, 7, 1),
    Sketcher.Constraint("Coincident", 7, 2, 8, 1),
    Sketcher.Constraint("Coincident", 8, 2, 9, 1),
    Sketcher.Constraint("Coincident", 9, 2, 10, 1),
    Sketcher.Constraint("Coincident", 10, 2, 11, 1),
    Sketcher.Constraint("Coincident", 11, 2, 0, 1),
    Sketcher.Constraint("Horizontal", 0),
    Sketcher.Constraint("Vertical", 1),
    Sketcher.Constraint("Horizontal", 2),
    Sketcher.Constraint("Vertical", 3),
    Sketcher.Constraint("Horizontal", 4),
    Sketcher.Constraint("Vertical", 5),
    Sketcher.Constraint("Horizontal", 6),
    Sketcher.Constraint("Vertical", 7),
    Sketcher.Constraint("Horizontal", 8),
    Sketcher.Constraint("Vertical", 9),
    Sketcher.Constraint("Horizontal", 10),
    Sketcher.Constraint("Vertical", 11),
    Sketcher.Constraint("Vertical", 3, 2, 6, 2),
    Sketcher.Constraint("Vertical", 1, 2, 8, 2),
    Sketcher.Constraint("Equal", 3, 7),
    Sketcher.Constraint("Equal", 1, 9),
    Sketcher.Constraint("DistanceX", 2, 1, 2, 2, 4.0),
    Sketcher.Constraint("DistanceY", 1, 2, 1, 1, 5.0),
    Sketcher.Constraint("DistanceY", 3, 1, 3, 2, 3.0),
    Sketcher.Constraint("DistanceX", 0, 2, 0, 1, 59.2),
    Sketcher.Constraint("DistanceX", 4, 1, 4, 2, 53.2),
    Sketcher.Constraint("DistanceY", 5, 2, 5, 1, 68.2),
    Sketcher.Constraint("DistanceY", -1, 1, 0, 2, 36.01),
    Sketcher.Constraint("DistanceX", 0, 2, -1, 1, 31.662614),
])
pad7 = body.newObject("PartDesign::Pad", "Pad006")
pad7.Profile = sketch10
pad7.Length = 2
pad7.Reversed = True

# Sketch on YZ plane
sketch11 = body.newObject("Sketcher::SketchObject", "Sketch010")
sketch11.AttachmentSupport = (doc.getObject("YZ_Plane"), [""])
sketch11.MapMode = "FlatFace"
sketch11.AttachmentOffset = App.Placement(V(0, 0, -31.662614), App.Rotation())
sketch11.addGeometry([
    Part.LineSegment(V(36, 60, 0), V(36, 57, 0)),  # 0
    Part.LineSegment(V(36, 57, 0), V(31, 57, 0)),  # 1
    Part.LineSegment(V(31, 57, 0), V(31, 60, 0)),  # 2
    Part.LineSegment(V(31, 60, 0), V(36, 60, 0)),  # 3
    Part.LineSegment(V(-31.2, 60, 0), V(-31.2, 57, 0)),  # 4
    Part.LineSegment(V(-31.2, 57, 0), V(-36.2, 57, 0)),  # 5
    Part.LineSegment(V(-36.2, 57, 0), V(-36.2, 60, 0)),  # 6
    Part.LineSegment(V(-36.2, 60, 0), V(-31.2, 60, 0)),  # 7
], False)
sketch11.addConstraint([
    Sketcher.Constraint("Coincident", 0, 2, 1, 1),
    Sketcher.Constraint("Coincident", 1, 2, 2, 1),
    Sketcher.Constraint("Coincident", 2, 2, 3, 1),
    Sketcher.Constraint("Coincident", 3, 2, 0, 1),
    Sketcher.Constraint("Coincident", 4, 2, 5, 1),
    Sketcher.Constraint("Coincident", 5, 2, 6, 1),
    Sketcher.Constraint("Coincident", 6, 2, 7, 1),
    Sketcher.Constraint("Coincident", 7, 2, 4, 1),
    Sketcher.Constraint("Vertical", 0),
    Sketcher.Constraint("Horizontal", 1),
    Sketcher.Constraint("Vertical", 2),
    Sketcher.Constraint("Horizontal", 3),
    Sketcher.Constraint("Vertical", 4),
    Sketcher.Constraint("Horizontal", 5),
    Sketcher.Constraint("Vertical", 6),
    Sketcher.Constraint("Horizontal", 7),
    Sketcher.Constraint("Horizontal", 1, 2, 4, 2),
    Sketcher.Constraint("Horizontal", 3, 2, 6, 2),
    Sketcher.Constraint("Equal", 3, 5),
    Sketcher.Constraint("DistanceX", 1, 2, 1, 1, 5.0),
    Sketcher.Constraint("DistanceY", 0, 2, 0, 1, 3.0),
    Sketcher.Constraint("DistanceY", -1, 1, 0, 2, 57.0),
    Sketcher.Constraint("DistanceX", 4, 2, 1, 2, 62.2),
    Sketcher.Constraint("DistanceX", -1, 1, 0, 2, 36.01),
])
pad8 = body.newObject("PartDesign::Pad", "Pad007")
pad8.Profile = sketch11
pad8.Length = 2

# Sketch on YZ plane
sketch12 = body.newObject("Sketcher::SketchObject", "Sketch011")
sketch12.AttachmentSupport = (doc.getObject("YZ_Plane"), [""])
sketch12.MapMode = "FlatFace"
sketch12.AttachmentOffset = App.Placement(V(0, 0, -31.662614), App.Rotation())
sketch12.addGeometry([
    Part.LineSegment(V(-28.2, 5, 0), V(-28.2, -1, 0)),  # 0
    Part.LineSegment(V(-28.2, -1, 0), V(-34.2, -1, 0)),  # 1
    Part.LineSegment(V(-34.2, -1, 0), V(-34.2, 5, 0)),  # 2
    Part.LineSegment(V(-34.2, 5, 0), V(-28.2, 5, 0)),  # 3
    Part.Circle(V(-31.2, 2, 0), V(0, 0, 1), 1.2),  # 4
    Part.LineSegment(V(11.8, 5, 0), V(11.8, -1, 0)),  # 5
    Part.LineSegment(V(11.8, -1, 0), V(5.8, -1, 0)),  # 6
    Part.LineSegment(V(5.8, -1, 0), V(5.8, 5, 0)),  # 7
    Part.LineSegment(V(5.8, 5, 0), V(11.8, 5, 0)),  # 8
    Part.Circle(V(8.8, 2, 0), V(0, 0, 1), 1.2),  # 9
], False)
sketch12.addConstraint([
    Sketcher.Constraint("Coincident", 0, 2, 1, 1),
    Sketcher.Constraint("Coincident", 1, 2, 2, 1),
    Sketcher.Constraint("Coincident", 2, 2, 3, 1),
    Sketcher.Constraint("Coincident", 3, 2, 0, 1),
    Sketcher.Constraint("Coincident", 5, 2, 6, 1),
    Sketcher.Constraint("Coincident", 6, 2, 7, 1),
    Sketcher.Constraint("Coincident", 7, 2, 8, 1),
    Sketcher.Constraint("Coincident", 8, 2, 5, 1),
    Sketcher.Constraint("Vertical", 0),
    Sketcher.Constraint("Horizontal", 1),
    Sketcher.Constraint("Vertical", 2),
    Sketcher.Constraint("Horizontal", 3),
    Sketcher.Constraint("Vertical", 5),
    Sketcher.Constraint("Horizontal", 6),
    Sketcher.Constraint("Vertical", 7),
    Sketcher.Constraint("Horizontal", 8),
    Sketcher.Constraint("Equal", 4, 9),
    Sketcher.Constraint("Horizontal", 4, 3, 9, 3),
    Sketcher.Constraint("Horizontal", 1, 2, 5, 2),
    Sketcher.Constraint("Horizontal", 3, 2, 7, 2),
    Sketcher.Constraint("Equal", 3, 6),
    Sketcher.Constraint("Equal", 8, 0),
    Sketcher.Constraint("Diameter", 4, 2.5),
    Sketcher.Constraint("DistanceX", 1, 2, 1, 1, 6.0),
    Sketcher.Constraint("DistanceY", -1, 1, 4, 3, 2.0),
    Sketcher.Constraint("DistanceY", 0, 2, -1, 1, 1.0),
    Sketcher.Constraint("DistanceX", 4, 3, 9, 3, 40.0),
    Sketcher.Constraint("DistanceX", 4, 3, 0, 2, 3.0),
    Sketcher.Constraint("DistanceX", 9, 3, 5, 2, 3.0),
    Sketcher.Constraint("DistanceX", 4, 3, -1, 1, 31.19),
])
pad9 = body.newObject("PartDesign::Pad", "Pad008")
pad9.Profile = sketch12
pad9.Length = 6

# Sketch on XY plane
sketch13 = body.newObject("Sketcher::SketchObject", "Sketch012")
sketch13.AttachmentSupport = (doc.getObject("XY_Plane"), [""])
sketch13.MapMode = "FlatFace"
sketch13.AttachmentOffset = App.Placement(V(0, 0, 32), App.Rotation())
sketch13.addGeometry([
    Part.LineSegment(V(-9.5, -36.2, 0), V(-9.5, -26.2, 0)),  # 0
    Part.LineSegment(V(-9.5, -26.2, 0), V(-7.5, -26.2, 0)),  # 1
    Part.LineSegment(V(-7.5, -26.2, 0), V(-7.5, -36.2, 0)),  # 2
    Part.LineSegment(V(-7.5, -36.2, 0), V(-9.5, -36.2, 0)),  # 3
    Part.LineSegment(V(-9.5, 26, 0), V(-9.5, 36, 0)),  # 4
    Part.LineSegment(V(-9.5, 36, 0), V(-7.5, 36, 0)),  # 5
    Part.LineSegment(V(-7.5, 36, 0), V(-7.5, 26, 0)),  # 6
    Part.LineSegment(V(-7.5, 26, 0), V(-9.5, 26, 0)),  # 7
], False)
sketch13.addConstraint([
    Sketcher.Constraint("Coincident", 0, 2, 1, 1),
    Sketcher.Constraint("Coincident", 1, 2, 2, 1),
    Sketcher.Constraint("Coincident", 2, 2, 3, 1),
    Sketcher.Constraint("Coincident", 3, 2, 0, 1),
    Sketcher.Constraint("Coincident", 4, 2, 5, 1),
    Sketcher.Constraint("Coincident", 5, 2, 6, 1),
    Sketcher.Constraint("Coincident", 6, 2, 7, 1),
    Sketcher.Constraint("Coincident", 7, 2, 4, 1),
    Sketcher.Constraint("Vertical", 0),
    Sketcher.Constraint("Horizontal", 1),
    Sketcher.Constraint("Vertical", 2),
    Sketcher.Constraint("Horizontal", 3),
    Sketcher.Constraint("Vertical", 4),
    Sketcher.Constraint("Horizontal", 5),
    Sketcher.Constraint("Vertical", 6),
    Sketcher.Constraint("Horizontal", 7),
    Sketcher.Constraint("Vertical", 3, 2, 4, 2),
    Sketcher.Constraint("Vertical", 2, 2, 5, 2),
    Sketcher.Constraint("Equal", 2, 4),
    Sketcher.Constraint("DistanceX", 1, 1, 1, 2, 2.0),
    Sketcher.Constraint("DistanceY", 0, 1, 0, 2, 10.0),
    Sketcher.Constraint("DistanceY", 0, 2, 4, 2, 62.2),
    Sketcher.Constraint("DistanceY", 0, 2, -1, 1, 26.19),
    Sketcher.Constraint("DistanceX", 0, 2, -1, 1, 9.462614),
])
pad10 = body.newObject("PartDesign::Pad", "Pad009")
pad10.Profile = sketch13
pad10.Length = 25
pad10.Reversed = True

# Sketch on XY plane
sketch14 = body.newObject("Sketcher::SketchObject", "Sketch013")
sketch14.AttachmentSupport = (doc.getObject("XY_Plane"), [""])
sketch14.MapMode = "FlatFace"
sketch14.AttachmentOffset = App.Placement(V(0, 0, 37), App.Rotation())
sketch14.addGeometry([
    Part.LineSegment(V(30, 38, 0), V(30, -38, 0)),
    Part.LineSegment(V(30, -38, 0), V(61, -38, 0)),
    Part.LineSegment(V(61, -38, 0), V(61, 38, 0)),
    Part.LineSegment(V(61, 38, 0), V(30, 38, 0)),
], False)
sketch14.addConstraint([
    Sketcher.Constraint("Coincident", 0, 2, 1, 1),
    Sketcher.Constraint("Coincident", 1, 2, 2, 1),
    Sketcher.Constraint("Coincident", 2, 2, 3, 1),
    Sketcher.Constraint("Coincident", 3, 2, 0, 1),
    Sketcher.Constraint("Vertical", 0),
    Sketcher.Constraint("Horizontal", 1),
    Sketcher.Constraint("Vertical", 2),
    Sketcher.Constraint("Horizontal", 3),
    Sketcher.Constraint("DistanceX", 1, 1, 1, 2, 31.5),
    Sketcher.Constraint("DistanceY", 0, 2, 0, 1, 76.2),
    Sketcher.Constraint("DistanceY", 0, 2, -1, 1, 38.19),
    Sketcher.Constraint("DistanceX", -1, 1, 0, 2, 29.537386),
])
pocket4 = body.newObject("PartDesign::Pocket", "Pocket003")
pocket4.Profile = sketch14
pocket4.Length = 6

# Sketch on XZ plane
sketch15 = body.newObject("Sketcher::SketchObject", "Sketch014")
sketch15.AttachmentSupport = (doc.getObject("XZ_Plane"), [""])
sketch15.MapMode = "FlatFace"
sketch15.AttachmentOffset = App.Placement(V(0, 0, -31.01), App.Rotation())
sketch15.addGeometry([
    Part.LineSegment(V(-31.7, 62, 0), V(-31.7, 57, 0)),
    Part.LineSegment(V(-31.7, 57, 0), V(-27.7, 57, 0)),
    Part.LineSegment(V(-27.7, 57, 0), V(-27.7, 62, 0)),
    Part.LineSegment(V(-27.7, 62, 0), V(-31.7, 62, 0)),
], False)
sketch15.addConstraint([
    Sketcher.Constraint("Coincident", 0, 2, 1, 1),
    Sketcher.Constraint("Coincident", 1, 2, 2, 1),
    Sketcher.Constraint("Coincident", 2, 2, 3, 1),
    Sketcher.Constraint("Coincident", 3, 2, 0, 1),
    Sketcher.Constraint("Vertical", 0),
    Sketcher.Constraint("Horizontal", 1),
    Sketcher.Constraint("Vertical", 2),
    Sketcher.Constraint("Horizontal", 3),
    Sketcher.Constraint("DistanceX", 1, 1, 1, 2, 4.0),
    Sketcher.Constraint("DistanceY", 0, 2, 0, 1, 5.0),
    Sketcher.Constraint("DistanceY", -1, 1, 0, 2, 57.0),
    Sketcher.Constraint("DistanceX", 0, 2, -1, 1, 31.662614),
])
pocket5 = body.newObject("PartDesign::Pocket", "Pocket004")
pocket5.Profile = sketch15
pocket5.Length = 0.5

# Sketch on XZ plane
sketch16 = body.newObject("Sketcher::SketchObject", "Sketch015")
sketch16.AttachmentSupport = (doc.getObject("XZ_Plane"), [""])
sketch16.MapMode = "FlatFace"
sketch16.AttachmentOffset = App.Placement(V(0, 0, 31.19), App.Rotation())
sketch16.addGeometry([
    Part.LineSegment(V(-27.7, 62, 0), V(-27.7, 57, 0)),
    Part.LineSegment(V(-27.7, 57, 0), V(-31.7, 57, 0)),
    Part.LineSegment(V(-31.7, 57, 0), V(-31.7, 62, 0)),
    Part.LineSegment(V(-31.7, 62, 0), V(-27.7, 62, 0)),
], False)
sketch16.addConstraint([
    Sketcher.Constraint("Coincident", 0, 2, 1, 1),
    Sketcher.Constraint("Coincident", 1, 2, 2, 1),
    Sketcher.Constraint("Coincident", 2, 2, 3, 1),
    Sketcher.Constraint("Coincident", 3, 2, 0, 1),
    Sketcher.Constraint("Vertical", 0),
    Sketcher.Constraint("Horizontal", 1),
    Sketcher.Constraint("Vertical", 2),
    Sketcher.Constraint("Horizontal", 3),
    Sketcher.Constraint("DistanceX", 1, 2, 1, 1, 4.0),
    Sketcher.Constraint("DistanceY", 0, 2, 0, 1, 5.0),
    Sketcher.Constraint("DistanceY", -1, 1, 0, 2, 57.0),
    Sketcher.Constraint("DistanceX", 0, 2, -1, 1, 27.662614),
])
pocket6 = body.newObject("PartDesign::Pocket", "Pocket005")
pocket6.Profile = sketch16
pocket6.Length = 0.5
pocket6.Reversed = True

doc.recompute()
